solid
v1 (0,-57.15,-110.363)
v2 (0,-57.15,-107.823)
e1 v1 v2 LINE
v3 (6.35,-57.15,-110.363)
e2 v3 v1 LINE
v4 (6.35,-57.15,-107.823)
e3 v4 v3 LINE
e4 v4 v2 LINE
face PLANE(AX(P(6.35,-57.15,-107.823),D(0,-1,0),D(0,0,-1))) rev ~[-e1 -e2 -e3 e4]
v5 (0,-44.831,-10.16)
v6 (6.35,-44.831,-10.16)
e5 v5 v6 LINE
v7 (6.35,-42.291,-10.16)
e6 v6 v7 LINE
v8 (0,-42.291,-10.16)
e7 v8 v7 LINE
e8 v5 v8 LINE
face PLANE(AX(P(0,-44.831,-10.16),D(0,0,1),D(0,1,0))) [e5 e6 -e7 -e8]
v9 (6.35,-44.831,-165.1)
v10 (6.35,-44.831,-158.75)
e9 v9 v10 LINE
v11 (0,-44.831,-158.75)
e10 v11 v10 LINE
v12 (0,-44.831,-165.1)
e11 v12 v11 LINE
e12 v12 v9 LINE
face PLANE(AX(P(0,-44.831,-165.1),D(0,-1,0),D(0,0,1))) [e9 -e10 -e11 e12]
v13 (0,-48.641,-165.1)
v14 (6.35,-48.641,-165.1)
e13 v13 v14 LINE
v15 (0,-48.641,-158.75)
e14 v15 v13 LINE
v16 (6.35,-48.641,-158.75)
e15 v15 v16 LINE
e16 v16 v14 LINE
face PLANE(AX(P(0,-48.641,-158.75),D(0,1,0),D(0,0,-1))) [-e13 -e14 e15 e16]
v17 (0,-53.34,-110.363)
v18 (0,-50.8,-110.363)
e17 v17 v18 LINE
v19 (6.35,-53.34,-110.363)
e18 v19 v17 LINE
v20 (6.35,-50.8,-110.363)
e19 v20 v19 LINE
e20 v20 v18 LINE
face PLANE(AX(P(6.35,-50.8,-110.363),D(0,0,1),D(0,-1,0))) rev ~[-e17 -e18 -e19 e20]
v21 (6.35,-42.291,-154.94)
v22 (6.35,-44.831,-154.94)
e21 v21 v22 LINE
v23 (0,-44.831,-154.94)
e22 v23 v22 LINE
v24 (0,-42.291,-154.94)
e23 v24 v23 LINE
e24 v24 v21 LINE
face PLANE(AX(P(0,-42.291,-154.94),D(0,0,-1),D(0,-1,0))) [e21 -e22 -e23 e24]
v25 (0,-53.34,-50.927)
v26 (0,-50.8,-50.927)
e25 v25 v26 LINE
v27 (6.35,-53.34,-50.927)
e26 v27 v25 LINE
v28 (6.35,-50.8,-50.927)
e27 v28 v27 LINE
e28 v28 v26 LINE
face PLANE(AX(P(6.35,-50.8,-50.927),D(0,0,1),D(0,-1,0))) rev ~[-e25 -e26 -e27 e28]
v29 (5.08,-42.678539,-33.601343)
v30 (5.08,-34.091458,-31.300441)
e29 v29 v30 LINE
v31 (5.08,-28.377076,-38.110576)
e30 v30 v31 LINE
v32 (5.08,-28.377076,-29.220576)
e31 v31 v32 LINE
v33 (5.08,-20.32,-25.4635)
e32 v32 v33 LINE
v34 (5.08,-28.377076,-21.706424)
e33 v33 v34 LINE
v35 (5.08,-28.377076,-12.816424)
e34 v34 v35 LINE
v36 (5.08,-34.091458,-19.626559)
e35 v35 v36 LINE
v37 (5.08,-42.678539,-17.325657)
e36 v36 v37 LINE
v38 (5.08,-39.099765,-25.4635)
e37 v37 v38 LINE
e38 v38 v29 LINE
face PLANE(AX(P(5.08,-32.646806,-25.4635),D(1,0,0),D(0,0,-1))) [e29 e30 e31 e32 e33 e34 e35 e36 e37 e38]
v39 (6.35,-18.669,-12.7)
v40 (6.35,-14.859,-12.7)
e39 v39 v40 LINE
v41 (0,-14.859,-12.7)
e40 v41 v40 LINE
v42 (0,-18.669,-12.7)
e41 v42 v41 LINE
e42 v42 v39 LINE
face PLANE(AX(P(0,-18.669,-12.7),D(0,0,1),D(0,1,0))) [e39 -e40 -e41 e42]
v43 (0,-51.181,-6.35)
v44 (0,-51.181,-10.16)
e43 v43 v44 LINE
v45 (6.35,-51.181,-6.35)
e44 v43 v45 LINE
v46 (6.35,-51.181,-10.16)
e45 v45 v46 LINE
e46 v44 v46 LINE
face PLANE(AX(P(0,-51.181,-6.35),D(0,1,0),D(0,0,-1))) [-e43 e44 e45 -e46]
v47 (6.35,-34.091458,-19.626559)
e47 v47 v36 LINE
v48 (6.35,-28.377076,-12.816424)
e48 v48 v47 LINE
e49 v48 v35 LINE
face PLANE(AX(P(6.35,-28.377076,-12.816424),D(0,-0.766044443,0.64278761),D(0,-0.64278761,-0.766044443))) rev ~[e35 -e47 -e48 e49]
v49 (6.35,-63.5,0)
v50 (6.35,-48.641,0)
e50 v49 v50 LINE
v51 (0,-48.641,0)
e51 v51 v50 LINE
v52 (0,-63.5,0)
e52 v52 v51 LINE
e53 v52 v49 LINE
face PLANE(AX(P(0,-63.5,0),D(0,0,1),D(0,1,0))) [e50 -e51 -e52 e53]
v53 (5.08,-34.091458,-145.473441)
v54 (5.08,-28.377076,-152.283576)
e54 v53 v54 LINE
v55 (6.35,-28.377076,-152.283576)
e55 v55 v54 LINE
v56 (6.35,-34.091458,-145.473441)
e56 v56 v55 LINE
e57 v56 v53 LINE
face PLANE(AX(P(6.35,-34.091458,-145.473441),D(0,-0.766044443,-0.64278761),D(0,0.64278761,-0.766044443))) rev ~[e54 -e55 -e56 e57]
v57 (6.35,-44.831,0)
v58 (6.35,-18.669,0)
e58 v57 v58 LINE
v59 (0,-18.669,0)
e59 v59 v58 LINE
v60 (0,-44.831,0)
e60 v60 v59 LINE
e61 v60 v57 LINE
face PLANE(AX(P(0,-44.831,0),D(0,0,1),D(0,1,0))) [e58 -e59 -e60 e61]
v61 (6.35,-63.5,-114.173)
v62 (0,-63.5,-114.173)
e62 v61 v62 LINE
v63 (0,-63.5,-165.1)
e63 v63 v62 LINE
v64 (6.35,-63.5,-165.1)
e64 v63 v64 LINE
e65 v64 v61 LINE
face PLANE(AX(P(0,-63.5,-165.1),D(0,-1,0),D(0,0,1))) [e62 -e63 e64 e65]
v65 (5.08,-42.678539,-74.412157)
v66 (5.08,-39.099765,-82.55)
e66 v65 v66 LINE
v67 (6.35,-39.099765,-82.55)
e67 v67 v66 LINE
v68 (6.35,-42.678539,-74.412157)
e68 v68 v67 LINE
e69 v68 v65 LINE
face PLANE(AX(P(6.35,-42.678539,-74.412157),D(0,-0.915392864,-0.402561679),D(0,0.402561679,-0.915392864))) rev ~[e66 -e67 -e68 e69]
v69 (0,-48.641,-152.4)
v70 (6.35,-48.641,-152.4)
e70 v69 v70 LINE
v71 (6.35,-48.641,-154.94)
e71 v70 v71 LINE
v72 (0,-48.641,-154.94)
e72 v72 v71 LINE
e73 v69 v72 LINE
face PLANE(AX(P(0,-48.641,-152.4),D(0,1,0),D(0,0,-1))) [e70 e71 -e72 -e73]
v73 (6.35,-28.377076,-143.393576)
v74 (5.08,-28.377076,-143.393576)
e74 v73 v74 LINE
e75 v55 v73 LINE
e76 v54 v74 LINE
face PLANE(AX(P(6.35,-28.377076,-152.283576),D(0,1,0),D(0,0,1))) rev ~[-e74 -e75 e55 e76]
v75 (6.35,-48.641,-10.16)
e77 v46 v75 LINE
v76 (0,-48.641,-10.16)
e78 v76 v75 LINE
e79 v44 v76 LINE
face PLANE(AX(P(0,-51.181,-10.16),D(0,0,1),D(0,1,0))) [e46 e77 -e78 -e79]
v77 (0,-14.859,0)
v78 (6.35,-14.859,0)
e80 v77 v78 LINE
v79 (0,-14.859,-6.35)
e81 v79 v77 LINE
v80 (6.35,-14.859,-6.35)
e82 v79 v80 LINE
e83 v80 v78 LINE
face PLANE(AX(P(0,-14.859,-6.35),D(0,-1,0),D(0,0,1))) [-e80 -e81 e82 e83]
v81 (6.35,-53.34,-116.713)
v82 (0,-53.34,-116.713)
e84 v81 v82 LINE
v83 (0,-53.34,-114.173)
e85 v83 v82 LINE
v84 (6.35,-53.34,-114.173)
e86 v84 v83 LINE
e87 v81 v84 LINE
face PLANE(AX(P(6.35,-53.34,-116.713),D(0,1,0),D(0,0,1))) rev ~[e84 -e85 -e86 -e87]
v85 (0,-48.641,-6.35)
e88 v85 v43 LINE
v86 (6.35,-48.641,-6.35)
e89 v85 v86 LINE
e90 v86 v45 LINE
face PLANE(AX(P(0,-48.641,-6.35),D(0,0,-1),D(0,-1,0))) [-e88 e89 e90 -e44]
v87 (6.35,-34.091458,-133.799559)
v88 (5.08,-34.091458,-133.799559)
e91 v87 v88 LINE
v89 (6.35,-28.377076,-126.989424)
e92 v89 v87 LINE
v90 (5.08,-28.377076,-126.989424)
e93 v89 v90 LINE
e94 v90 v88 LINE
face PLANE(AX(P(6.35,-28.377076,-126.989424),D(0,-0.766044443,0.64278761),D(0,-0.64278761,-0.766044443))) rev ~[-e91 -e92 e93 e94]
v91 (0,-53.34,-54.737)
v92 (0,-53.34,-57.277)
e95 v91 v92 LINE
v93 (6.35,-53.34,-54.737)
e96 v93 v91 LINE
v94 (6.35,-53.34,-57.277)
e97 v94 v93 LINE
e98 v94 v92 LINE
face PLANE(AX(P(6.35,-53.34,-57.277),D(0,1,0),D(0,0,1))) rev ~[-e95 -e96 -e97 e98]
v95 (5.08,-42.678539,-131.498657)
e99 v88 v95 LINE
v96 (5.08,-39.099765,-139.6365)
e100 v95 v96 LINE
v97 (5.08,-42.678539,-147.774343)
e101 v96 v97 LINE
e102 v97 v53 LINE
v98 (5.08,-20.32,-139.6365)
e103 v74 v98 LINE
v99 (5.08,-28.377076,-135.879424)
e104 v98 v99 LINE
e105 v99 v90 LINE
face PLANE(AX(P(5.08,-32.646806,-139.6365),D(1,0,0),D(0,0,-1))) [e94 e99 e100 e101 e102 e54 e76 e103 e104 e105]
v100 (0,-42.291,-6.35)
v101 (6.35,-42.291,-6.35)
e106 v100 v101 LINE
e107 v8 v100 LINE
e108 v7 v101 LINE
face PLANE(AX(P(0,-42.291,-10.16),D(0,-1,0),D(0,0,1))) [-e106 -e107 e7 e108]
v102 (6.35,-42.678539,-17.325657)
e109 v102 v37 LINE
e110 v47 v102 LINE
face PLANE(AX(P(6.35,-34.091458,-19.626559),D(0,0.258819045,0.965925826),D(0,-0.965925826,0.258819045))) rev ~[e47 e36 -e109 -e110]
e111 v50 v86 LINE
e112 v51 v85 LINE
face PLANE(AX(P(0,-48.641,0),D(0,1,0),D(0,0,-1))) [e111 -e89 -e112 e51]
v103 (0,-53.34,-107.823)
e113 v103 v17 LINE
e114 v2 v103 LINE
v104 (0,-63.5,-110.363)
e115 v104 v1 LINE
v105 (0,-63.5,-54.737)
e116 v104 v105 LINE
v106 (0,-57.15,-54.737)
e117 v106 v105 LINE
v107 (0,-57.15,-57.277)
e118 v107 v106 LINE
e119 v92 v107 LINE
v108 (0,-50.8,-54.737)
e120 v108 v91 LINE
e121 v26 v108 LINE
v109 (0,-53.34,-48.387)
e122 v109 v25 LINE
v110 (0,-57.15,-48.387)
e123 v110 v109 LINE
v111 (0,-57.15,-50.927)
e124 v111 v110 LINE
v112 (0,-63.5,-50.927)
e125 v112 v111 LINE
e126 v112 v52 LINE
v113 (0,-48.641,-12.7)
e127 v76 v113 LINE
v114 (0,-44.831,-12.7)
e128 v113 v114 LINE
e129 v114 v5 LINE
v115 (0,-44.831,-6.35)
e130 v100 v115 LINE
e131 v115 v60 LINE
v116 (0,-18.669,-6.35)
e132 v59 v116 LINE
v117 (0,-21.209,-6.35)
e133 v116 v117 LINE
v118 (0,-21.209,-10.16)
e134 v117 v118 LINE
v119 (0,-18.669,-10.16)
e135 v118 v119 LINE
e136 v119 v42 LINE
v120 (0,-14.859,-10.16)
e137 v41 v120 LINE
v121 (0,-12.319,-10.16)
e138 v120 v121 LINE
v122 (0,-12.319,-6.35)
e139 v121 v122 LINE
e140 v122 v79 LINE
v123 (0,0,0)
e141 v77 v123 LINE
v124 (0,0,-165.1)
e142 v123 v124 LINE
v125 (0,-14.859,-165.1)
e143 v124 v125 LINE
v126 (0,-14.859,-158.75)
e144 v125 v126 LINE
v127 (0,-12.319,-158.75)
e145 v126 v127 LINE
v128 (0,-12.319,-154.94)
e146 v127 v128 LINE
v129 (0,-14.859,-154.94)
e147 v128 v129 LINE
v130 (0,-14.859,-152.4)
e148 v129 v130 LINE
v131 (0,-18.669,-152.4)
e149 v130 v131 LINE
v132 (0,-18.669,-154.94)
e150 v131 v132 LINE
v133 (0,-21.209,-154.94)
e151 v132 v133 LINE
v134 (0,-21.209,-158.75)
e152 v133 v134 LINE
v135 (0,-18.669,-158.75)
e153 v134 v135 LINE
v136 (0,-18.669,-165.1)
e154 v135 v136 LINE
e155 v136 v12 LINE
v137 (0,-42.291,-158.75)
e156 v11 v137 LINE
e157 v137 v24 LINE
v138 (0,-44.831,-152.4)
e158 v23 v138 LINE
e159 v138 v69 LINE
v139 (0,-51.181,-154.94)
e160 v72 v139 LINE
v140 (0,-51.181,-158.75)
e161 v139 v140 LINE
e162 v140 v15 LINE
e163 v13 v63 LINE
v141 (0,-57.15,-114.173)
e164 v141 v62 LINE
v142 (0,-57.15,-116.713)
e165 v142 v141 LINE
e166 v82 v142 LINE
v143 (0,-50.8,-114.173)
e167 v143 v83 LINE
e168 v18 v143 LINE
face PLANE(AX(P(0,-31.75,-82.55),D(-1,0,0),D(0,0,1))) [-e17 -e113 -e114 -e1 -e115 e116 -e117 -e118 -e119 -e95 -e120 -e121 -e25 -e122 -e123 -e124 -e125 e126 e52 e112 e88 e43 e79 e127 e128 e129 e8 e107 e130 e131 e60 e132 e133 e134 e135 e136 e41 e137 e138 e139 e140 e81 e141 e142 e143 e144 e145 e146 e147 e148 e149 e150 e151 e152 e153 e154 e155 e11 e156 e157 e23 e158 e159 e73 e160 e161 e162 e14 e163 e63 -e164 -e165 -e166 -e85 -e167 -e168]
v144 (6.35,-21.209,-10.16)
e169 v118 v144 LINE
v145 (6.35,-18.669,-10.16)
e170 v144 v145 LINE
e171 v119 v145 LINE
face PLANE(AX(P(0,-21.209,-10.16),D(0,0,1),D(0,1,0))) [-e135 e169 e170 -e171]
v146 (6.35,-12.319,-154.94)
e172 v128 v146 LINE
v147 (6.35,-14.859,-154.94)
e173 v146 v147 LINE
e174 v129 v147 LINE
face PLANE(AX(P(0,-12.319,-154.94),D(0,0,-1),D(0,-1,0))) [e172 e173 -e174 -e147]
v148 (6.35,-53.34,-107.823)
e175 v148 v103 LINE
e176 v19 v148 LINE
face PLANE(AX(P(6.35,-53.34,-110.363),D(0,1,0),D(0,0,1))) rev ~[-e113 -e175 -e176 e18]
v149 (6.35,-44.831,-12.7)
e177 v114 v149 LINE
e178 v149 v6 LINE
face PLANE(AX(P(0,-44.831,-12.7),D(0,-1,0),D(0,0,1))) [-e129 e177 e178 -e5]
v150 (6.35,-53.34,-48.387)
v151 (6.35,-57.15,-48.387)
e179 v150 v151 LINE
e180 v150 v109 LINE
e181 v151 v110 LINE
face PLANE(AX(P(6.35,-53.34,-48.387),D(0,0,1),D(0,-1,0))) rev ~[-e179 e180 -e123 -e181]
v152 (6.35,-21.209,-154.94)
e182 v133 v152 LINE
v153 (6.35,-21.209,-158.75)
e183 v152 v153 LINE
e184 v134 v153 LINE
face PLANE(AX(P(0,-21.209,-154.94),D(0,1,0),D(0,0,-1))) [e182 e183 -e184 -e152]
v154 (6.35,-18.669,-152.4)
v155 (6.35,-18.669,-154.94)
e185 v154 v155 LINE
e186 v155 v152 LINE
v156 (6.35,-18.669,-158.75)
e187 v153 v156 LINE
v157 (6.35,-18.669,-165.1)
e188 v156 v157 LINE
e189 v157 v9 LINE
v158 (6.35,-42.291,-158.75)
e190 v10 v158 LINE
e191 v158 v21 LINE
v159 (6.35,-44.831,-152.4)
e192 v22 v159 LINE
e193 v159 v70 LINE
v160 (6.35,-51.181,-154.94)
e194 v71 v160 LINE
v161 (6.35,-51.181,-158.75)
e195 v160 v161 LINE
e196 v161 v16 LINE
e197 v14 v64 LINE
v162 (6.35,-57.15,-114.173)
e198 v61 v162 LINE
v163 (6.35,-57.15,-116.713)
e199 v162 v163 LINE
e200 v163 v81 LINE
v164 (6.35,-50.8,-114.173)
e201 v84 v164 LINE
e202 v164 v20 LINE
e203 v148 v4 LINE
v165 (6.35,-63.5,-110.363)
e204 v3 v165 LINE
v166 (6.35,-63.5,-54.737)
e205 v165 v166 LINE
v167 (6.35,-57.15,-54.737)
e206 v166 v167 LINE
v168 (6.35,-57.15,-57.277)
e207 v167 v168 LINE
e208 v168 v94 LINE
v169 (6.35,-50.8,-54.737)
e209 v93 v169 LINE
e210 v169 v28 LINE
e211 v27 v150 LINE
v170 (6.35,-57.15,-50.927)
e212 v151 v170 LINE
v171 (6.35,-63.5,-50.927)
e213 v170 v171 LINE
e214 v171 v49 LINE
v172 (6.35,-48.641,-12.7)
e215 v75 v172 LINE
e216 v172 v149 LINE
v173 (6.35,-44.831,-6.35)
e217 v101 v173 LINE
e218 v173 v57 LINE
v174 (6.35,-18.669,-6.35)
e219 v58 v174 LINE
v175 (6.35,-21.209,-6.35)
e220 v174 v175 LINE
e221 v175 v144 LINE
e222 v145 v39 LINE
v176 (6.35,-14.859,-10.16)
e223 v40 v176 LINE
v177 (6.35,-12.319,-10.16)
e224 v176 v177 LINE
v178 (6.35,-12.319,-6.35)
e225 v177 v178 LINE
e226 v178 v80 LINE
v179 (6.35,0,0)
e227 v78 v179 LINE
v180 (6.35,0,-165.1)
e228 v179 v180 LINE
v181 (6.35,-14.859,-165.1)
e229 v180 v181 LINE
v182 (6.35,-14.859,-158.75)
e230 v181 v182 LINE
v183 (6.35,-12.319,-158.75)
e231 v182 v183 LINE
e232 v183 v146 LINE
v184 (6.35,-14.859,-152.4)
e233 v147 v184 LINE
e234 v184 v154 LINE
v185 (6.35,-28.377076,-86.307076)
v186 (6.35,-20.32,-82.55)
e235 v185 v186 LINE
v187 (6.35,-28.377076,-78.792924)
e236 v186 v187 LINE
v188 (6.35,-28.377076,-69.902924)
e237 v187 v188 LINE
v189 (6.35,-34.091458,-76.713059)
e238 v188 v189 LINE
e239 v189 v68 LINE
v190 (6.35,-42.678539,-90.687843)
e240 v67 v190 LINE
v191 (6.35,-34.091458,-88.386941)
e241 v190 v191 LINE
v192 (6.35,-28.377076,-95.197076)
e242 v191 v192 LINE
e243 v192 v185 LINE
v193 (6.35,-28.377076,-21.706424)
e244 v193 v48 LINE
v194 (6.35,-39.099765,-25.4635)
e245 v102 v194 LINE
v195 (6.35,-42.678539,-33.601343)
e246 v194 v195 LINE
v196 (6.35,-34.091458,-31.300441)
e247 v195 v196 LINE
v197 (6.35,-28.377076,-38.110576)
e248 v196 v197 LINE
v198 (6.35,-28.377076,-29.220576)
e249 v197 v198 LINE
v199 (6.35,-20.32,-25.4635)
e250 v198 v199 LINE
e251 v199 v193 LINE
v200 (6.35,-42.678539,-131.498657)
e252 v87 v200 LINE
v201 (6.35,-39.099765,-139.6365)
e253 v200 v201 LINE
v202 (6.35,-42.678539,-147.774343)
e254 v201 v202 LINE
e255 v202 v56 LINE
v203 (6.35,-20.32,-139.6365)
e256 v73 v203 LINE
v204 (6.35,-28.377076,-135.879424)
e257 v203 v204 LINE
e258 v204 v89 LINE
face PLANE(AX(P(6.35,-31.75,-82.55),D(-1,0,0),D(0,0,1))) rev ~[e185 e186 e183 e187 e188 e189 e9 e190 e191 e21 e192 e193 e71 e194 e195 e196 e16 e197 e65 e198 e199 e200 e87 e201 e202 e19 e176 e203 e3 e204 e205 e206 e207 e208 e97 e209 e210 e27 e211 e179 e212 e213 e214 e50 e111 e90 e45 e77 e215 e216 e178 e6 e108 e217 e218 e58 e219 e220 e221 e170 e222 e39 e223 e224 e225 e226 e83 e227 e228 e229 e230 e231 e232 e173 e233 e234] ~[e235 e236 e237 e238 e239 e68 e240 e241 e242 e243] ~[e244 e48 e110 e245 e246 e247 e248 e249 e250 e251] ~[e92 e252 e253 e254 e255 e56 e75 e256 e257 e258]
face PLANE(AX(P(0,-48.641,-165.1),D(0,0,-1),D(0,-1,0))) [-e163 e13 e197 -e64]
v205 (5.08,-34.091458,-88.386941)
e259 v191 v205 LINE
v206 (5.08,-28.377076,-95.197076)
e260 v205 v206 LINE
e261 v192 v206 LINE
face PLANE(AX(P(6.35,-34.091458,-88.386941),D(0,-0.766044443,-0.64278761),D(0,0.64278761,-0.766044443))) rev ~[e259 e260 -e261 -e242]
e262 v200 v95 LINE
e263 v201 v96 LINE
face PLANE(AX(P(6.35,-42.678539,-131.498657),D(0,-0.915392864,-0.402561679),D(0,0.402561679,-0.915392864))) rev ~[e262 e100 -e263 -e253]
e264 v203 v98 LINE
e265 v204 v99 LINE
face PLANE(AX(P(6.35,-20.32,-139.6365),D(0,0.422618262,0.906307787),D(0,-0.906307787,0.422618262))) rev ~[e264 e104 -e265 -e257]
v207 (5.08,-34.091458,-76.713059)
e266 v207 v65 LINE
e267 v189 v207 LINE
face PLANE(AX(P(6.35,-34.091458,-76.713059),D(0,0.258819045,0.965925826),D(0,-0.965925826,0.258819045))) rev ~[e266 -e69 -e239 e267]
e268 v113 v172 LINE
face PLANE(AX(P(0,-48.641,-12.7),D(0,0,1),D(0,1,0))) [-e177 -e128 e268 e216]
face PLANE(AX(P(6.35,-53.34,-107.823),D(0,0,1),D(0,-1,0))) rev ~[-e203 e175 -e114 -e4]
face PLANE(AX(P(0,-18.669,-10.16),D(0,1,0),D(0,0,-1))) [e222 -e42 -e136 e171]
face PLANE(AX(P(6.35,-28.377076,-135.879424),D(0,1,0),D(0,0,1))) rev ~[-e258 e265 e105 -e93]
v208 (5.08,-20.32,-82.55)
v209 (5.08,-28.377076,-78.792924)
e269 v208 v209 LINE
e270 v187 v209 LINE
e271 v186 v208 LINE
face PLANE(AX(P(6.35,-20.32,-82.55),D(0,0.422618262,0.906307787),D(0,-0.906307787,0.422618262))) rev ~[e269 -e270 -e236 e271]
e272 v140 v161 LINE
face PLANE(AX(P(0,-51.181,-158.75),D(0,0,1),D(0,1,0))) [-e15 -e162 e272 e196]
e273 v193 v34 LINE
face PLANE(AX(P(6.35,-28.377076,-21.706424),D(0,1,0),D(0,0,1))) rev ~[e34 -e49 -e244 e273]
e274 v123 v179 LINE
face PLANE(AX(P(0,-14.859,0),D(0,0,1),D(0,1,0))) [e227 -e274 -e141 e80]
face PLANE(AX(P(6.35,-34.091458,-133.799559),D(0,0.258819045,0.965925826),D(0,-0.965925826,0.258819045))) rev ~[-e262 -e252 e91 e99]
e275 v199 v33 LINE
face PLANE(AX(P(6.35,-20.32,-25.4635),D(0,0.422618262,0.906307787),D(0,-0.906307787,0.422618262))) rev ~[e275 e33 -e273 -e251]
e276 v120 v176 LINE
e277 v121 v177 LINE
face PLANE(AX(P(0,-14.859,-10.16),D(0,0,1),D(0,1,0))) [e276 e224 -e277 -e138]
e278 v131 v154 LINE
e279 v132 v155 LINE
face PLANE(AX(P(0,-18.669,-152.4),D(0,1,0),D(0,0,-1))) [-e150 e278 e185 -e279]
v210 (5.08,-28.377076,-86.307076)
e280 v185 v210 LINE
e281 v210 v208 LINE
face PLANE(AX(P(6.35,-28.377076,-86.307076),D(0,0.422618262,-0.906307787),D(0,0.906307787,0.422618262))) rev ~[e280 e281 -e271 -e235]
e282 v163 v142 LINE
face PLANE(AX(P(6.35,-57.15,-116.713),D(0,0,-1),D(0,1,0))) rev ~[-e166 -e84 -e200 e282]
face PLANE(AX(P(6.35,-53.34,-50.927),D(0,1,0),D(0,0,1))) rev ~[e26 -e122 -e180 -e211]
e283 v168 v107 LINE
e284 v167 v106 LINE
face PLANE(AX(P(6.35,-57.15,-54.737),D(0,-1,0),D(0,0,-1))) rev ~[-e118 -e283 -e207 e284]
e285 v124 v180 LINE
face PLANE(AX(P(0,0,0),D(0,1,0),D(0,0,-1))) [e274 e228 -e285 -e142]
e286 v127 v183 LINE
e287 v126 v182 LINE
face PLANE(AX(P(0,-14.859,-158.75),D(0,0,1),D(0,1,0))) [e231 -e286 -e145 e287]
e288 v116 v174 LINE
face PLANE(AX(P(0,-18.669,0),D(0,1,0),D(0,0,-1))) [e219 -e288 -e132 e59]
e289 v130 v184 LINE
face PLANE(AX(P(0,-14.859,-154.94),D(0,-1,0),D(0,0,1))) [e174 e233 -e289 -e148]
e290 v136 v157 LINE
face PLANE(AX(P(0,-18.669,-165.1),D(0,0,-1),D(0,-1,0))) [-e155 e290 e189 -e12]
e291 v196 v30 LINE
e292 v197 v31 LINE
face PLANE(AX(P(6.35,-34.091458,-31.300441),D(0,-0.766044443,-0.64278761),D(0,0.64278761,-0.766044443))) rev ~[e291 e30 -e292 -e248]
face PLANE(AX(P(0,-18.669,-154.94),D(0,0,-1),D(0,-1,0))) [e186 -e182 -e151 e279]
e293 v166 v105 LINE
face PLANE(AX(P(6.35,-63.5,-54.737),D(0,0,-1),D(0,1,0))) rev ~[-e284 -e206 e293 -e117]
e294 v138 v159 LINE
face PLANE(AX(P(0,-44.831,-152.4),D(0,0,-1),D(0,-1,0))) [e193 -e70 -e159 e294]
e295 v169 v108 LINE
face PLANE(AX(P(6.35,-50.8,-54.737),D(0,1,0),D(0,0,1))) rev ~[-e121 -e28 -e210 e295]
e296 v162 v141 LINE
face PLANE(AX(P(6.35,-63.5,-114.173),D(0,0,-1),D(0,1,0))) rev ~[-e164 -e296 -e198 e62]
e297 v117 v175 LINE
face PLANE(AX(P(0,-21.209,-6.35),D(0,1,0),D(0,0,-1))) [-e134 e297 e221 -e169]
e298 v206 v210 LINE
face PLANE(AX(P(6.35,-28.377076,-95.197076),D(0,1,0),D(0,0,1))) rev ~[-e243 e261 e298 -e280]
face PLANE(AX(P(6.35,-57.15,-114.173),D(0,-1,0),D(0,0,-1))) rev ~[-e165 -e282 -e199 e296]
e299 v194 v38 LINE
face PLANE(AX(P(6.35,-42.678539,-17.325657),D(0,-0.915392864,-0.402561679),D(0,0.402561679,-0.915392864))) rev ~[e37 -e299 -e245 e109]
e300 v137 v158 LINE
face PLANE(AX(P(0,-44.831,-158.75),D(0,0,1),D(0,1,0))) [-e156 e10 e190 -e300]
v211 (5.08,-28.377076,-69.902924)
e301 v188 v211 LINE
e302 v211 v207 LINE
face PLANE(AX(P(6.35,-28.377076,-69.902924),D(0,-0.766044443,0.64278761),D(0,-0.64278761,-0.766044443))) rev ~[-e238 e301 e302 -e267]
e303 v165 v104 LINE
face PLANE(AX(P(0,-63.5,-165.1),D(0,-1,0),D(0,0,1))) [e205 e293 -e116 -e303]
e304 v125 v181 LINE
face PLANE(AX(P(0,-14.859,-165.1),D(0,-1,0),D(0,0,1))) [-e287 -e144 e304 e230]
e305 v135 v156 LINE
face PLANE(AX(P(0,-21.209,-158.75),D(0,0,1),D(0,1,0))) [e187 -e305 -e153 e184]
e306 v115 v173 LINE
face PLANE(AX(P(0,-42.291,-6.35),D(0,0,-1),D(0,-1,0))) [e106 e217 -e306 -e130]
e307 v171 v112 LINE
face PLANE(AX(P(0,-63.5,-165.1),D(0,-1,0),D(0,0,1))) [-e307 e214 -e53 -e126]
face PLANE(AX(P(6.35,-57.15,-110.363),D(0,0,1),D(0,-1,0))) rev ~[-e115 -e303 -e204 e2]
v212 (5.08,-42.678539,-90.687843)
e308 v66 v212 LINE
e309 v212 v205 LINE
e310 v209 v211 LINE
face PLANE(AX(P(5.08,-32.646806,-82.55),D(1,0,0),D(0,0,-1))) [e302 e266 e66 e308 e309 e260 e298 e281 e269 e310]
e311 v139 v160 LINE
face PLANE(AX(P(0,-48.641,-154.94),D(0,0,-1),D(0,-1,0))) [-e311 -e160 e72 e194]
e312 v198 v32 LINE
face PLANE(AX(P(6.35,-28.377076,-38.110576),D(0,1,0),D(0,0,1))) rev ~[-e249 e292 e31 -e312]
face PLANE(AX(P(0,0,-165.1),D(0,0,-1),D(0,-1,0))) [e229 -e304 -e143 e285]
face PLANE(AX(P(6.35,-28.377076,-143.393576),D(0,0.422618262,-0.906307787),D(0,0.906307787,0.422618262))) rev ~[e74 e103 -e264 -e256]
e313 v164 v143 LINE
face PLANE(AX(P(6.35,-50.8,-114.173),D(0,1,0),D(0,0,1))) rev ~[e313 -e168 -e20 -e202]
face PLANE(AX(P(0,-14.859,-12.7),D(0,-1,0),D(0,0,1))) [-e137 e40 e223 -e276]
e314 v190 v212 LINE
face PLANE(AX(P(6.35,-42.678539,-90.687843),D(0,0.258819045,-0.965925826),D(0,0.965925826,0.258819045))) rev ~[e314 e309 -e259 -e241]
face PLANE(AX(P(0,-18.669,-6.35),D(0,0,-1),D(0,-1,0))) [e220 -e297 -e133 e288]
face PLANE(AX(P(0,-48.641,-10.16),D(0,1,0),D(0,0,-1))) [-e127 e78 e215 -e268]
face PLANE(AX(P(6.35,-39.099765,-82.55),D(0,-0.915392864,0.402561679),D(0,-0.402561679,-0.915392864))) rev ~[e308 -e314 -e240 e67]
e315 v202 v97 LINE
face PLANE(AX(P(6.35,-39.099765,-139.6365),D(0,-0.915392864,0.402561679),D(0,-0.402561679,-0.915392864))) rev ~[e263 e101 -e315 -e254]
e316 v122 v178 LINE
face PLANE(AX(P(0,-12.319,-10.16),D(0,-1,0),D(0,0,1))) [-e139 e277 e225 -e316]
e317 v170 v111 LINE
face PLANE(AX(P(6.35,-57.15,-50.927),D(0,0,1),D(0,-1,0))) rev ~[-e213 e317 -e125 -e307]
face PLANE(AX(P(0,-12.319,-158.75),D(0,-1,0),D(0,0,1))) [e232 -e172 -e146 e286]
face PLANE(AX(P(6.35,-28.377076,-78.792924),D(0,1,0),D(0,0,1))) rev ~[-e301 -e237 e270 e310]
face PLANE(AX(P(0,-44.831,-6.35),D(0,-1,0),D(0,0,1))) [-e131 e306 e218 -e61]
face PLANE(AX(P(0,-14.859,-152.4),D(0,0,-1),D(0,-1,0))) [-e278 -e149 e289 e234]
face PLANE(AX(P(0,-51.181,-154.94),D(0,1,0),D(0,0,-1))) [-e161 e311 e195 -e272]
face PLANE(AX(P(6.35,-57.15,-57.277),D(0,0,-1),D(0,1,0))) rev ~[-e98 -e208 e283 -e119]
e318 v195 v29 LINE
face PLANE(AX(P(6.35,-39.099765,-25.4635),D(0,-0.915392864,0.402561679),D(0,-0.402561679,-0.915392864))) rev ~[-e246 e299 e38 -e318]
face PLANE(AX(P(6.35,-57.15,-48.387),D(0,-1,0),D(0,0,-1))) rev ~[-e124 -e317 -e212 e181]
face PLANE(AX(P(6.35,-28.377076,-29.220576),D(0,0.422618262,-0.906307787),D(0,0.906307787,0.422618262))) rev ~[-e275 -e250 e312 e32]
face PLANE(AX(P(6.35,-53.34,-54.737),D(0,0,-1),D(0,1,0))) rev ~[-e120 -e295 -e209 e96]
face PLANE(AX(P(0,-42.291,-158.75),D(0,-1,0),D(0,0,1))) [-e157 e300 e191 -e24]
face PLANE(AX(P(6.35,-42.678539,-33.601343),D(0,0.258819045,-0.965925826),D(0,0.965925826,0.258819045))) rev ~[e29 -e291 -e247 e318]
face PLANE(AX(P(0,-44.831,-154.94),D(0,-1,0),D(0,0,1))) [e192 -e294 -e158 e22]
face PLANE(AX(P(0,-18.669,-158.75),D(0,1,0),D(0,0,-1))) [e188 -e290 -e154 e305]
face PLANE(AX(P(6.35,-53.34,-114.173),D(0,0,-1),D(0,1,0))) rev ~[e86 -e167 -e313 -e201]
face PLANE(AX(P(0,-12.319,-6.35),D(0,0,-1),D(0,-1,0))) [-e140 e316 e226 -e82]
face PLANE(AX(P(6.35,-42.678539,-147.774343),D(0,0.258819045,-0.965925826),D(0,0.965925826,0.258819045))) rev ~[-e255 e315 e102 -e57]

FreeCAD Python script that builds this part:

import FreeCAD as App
import Part
import Sketcher

V = App.Vector
Q = App.Units.Quantity

doc = App.newDocument("Part")
body = doc.addObject("PartDesign::Body", "Body")

# Sketch on YZ plane
sketch1 = doc.addObject("Sketcher::SketchObject", "Sketch")
body.addObject(sketch1)
sketch1.AttachmentSupport = (doc.YZ_Plane, [""])
sketch1.MapMode = "FlatFace"
sketch1.addGeometry([
    Part.LineSegment(V(0, -165.1, 0), V(0, 0, 0)),  # 0
    Part.LineSegment(V(0, 0, 0), V(-14.9, 0, 0)),  # 1
    Part.LineSegment(V(-14.9, 0, 0), V(-14.9, -6.3, 0)),  # 2
    Part.LineSegment(V(-14.9, -6.3, 0), V(-12.3, -6.3, 0)),  # 3
    Part.LineSegment(V(-12.3, -6.3, 0), V(-12.3, -10.2, 0)),  # 4
    Part.LineSegment(V(-12.3, -10.2, 0), V(-14.9, -10.2, 0)),  # 5
    Part.LineSegment(V(-14.9, -10.2, 0), V(-14.9, -12.7, 0)),  # 6
    Part.LineSegment(V(-14.9, -12.7, 0), V(-18.7, -12.7, 0)),  # 7
    Part.LineSegment(V(-18.7, -12.7, 0), V(-18.7, -10.2, 0)),  # 8
    Part.LineSegment(V(-18.7, -10.2, 0), V(-21.2, -10.2, 0)),  # 9
    Part.LineSegment(V(-21.2, -10.2, 0), V(-21.2, -6.3, 0)),  # 10
    Part.LineSegment(V(-21.2, -6.3, 0), V(-18.7, -6.3, 0)),  # 11
    Part.LineSegment(V(-18.7, -6.3, 0), V(-18.7, 0, 0)),  # 12
    Part.LineSegment(V(-18.7, 0, 0), V(-44.8, 0, 0)),  # 13
    Part.LineSegment(V(-44.8, 0, 0), V(-44.8, -6.3, 0)),  # 14
    Part.LineSegment(V(-44.8, -6.3, 0), V(-42.3, -6.3, 0)),  # 15
    Part.LineSegment(V(-42.3, -6.3, 0), V(-42.3, -10.2, 0)),  # 16
    Part.LineSegment(V(-42.3, -10.2, 0), V(-44.8, -10.2, 0)),  # 17
    Part.LineSegment(V(-44.8, -10.2, 0), V(-44.8, -12.7, 0)),  # 18
    Part.LineSegment(V(-44.8, -12.7, 0), V(-48.6, -12.7, 0)),  # 19
    Part.LineSegment(V(-48.6, -12.7, 0), V(-48.6, -10.2, 0)),  # 20
    Part.LineSegment(V(-48.6, -10.2, 0), V(-51.2, -10.2, 0)),  # 21
    Part.LineSegment(V(-51.2, -10.2, 0), V(-51.2, -6.3, 0)),  # 22
    Part.LineSegment(V(-51.2, -6.3, 0), V(-48.6, -6.3, 0)),  # 23
    Part.LineSegment(V(-48.6, -6.3, 0), V(-48.6, 0, 0)),  # 24
    Part.LineSegment(V(-48.6, 0, 0), V(-63.5, 0, 0)),  # 25
    Part.LineSegment(V(-63.5, 0, 0), V(-63.5, -165.1, 0)),  # 26
    Part.LineSegment(V(-63.5, -165.1, 0), V(-48.6, -165.1, 0)),  # 27
    Part.LineSegment(V(-48.6, -165.1, 0), V(-48.6, -158.8, 0)),  # 28
    Part.LineSegment(V(-48.6, -158.8, 0), V(-51.2, -158.8, 0)),  # 29
    Part.LineSegment(V(-51.2, -158.8, 0), V(-51.2, -154.9, 0)),  # 30
    Part.LineSegment(V(-51.2, -154.9, 0), V(-48.6, -154.9, 0)),  # 31
    Part.LineSegment(V(-48.6, -154.9, 0), V(-48.6, -152.4, 0)),  # 32
    Part.LineSegment(V(-48.6, -152.4, 0), V(-44.8, -152.4, 0)),  # 33
    Part.LineSegment(V(-44.8, -152.4, 0), V(-44.8, -154.9, 0)),  # 34
    Part.LineSegment(V(-44.8, -154.9, 0), V(-42.3, -154.9, 0)),  # 35
    Part.LineSegment(V(-42.3, -154.9, 0), V(-42.3, -158.8, 0)),  # 36
    Part.LineSegment(V(-42.3, -158.8, 0), V(-44.8, -158.8, 0)),  # 37
    Part.LineSegment(V(-44.8, -158.8, 0), V(-44.8, -165.1, 0)),  # 38
    Part.LineSegment(V(-44.8, -165.1, 0), V(-18.7, -165.1, 0)),  # 39
    Part.LineSegment(V(-18.7, -165.1, 0), V(-18.7, -158.8, 0)),  # 40
    Part.LineSegment(V(-18.7, -158.8, 0), V(-21.2, -158.8, 0)),  # 41
    Part.LineSegment(V(-21.2, -158.8, 0), V(-21.2, -154.9, 0)),  # 42
    Part.LineSegment(V(-21.2, -154.9, 0), V(-18.7, -154.9, 0)),  # 43
    Part.LineSegment(V(-18.7, -154.9, 0), V(-18.7, -152.4, 0)),  # 44
    Part.LineSegment(V(-18.7, -152.4, 0), V(-14.9, -152.4, 0)),  # 45
    Part.LineSegment(V(-14.9, -152.4, 0), V(-14.9, -154.9, 0)),  # 46
    Part.LineSegment(V(-14.9, -154.9, 0), V(-12.3, -154.9, 0)),  # 47
    Part.LineSegment(V(-12.3, -154.9, 0), V(-12.3, -158.8, 0)),  # 48
    Part.LineSegment(V(-12.3, -158.8, 0), V(-14.9, -158.8, 0)),  # 49
    Part.LineSegment(V(-14.9, -158.8, 0), V(-14.9, -165.1, 0)),  # 50
    Part.LineSegment(V(-14.9, -165.1, 0), V(0, -165.1, 0)),  # 51
], False)
sketch1.addConstraint([
    Sketcher.Constraint("Coincident", 0, 2, 1, 1),
    Sketcher.Constraint("Coincident", 1, 2, 2, 1),
    Sketcher.Constraint("Coincident", 2, 2, 3, 1),
    Sketcher.Constraint("Coincident", 3, 2, 4, 1),
    Sketcher.Constraint("Coincident", 4, 2, 5, 1),
    Sketcher.Constraint("Coincident", 5, 2, 6, 1),
    Sketcher.Constraint("Coincident", 6, 2, 7, 1),
    Sketcher.Constraint("Coincident", 7, 2, 8, 1),
    Sketcher.Constraint("Coincident", 8, 2, 9, 1),
    Sketcher.Constraint("Coincident", 9, 2, 10, 1),
    Sketcher.Constraint("Coincident", 10, 2, 11, 1),
    Sketcher.Constraint("Coincident", 11, 2, 12, 1),
    Sketcher.Constraint("Coincident", 12, 2, 13, 1),
    Sketcher.Constraint("Coincident", 13, 2, 14, 1),
    Sketcher.Constraint("Coincident", 14, 2, 15, 1),
    Sketcher.Constraint("Coincident", 15, 2, 16, 1),
    Sketcher.Constraint("Coincident", 16, 2, 17, 1),
    Sketcher.Constraint("Coincident", 17, 2, 18, 1),
    Sketcher.Constraint("Coincident", 18, 2, 19, 1),
    Sketcher.Constraint("Coincident", 19, 2, 20, 1),
    Sketcher.Constraint("Coincident", 20, 2, 21, 1),
    Sketcher.Constraint("Coincident", 21, 2, 22, 1),
    Sketcher.Constraint("Coincident", 22, 2, 23, 1),
    Sketcher.Constraint("Coincident", 23, 2, 24, 1),
    Sketcher.Constraint("Coincident", 24, 2, 25, 1),
    Sketcher.Constraint("Coincident", 25, 2, 26, 1),
    Sketcher.Constraint("Coincident", 26, 2, 27, 1),
    Sketcher.Constraint("Coincident", 27, 2, 28, 1),
    Sketcher.Constraint("Coincident", 28, 2, 29, 1),
    Sketcher.Constraint("Coincident", 29, 2, 30, 1),
    Sketcher.Constraint("Coincident", 30, 2, 31, 1),
    Sketcher.Constraint("Coincident", 31, 2, 32, 1),
    Sketcher.Constraint("Coincident", 32, 2, 33, 1),
    Sketcher.Constraint("Coincident", 33, 2, 34, 1),
    Sketcher.Constraint("Coincident", 34, 2, 35, 1),
    Sketcher.Constraint("Coincident", 35, 2, 36, 1),
    Sketcher.Constraint("Coincident", 36, 2, 37, 1),
    Sketcher.Constraint("Coincident", 37, 2, 38, 1),
    Sketcher.Constraint("Coincident", 38, 2, 39, 1),
    Sketcher.Constraint("Coincident", 39, 2, 40, 1),
    Sketcher.Constraint("Coincident", 40, 2, 41, 1),
    Sketcher.Constraint("Coincident", 41, 2, 42, 1),
    Sketcher.Constraint("Coincident", 42, 2, 43, 1),
    Sketcher.Constraint("Coincident", 43, 2, 44, 1),
    Sketcher.Constraint("Coincident", 44, 2, 45, 1),
    Sketcher.Constraint("Coincident", 45, 2, 46, 1),
    Sketcher.Constraint("Coincident", 46, 2, 47, 1),
    Sketcher.Constraint("Coincident", 47, 2, 48, 1),
    Sketcher.Constraint("Coincident", 48, 2, 49, 1),
    Sketcher.Constraint("Coincident", 49, 2, 50, 1),
    Sketcher.Constraint("Coincident", 50, 2, 51, 1),
    Sketcher.Constraint("Coincident", 51, 2, 0, 1),
    Sketcher.Constraint("Vertical", 0),
    Sketcher.Constraint("Horizontal", 1),
    Sketcher.Constraint("Vertical", 2),
    Sketcher.Constraint("Horizontal", 3),
    Sketcher.Constraint("Vertical", 4),
    Sketcher.Constraint("Horizontal", 5),
    Sketcher.Constraint("Vertical", 6),
    Sketcher.Constraint("Horizontal", 7),
    Sketcher.Constraint("Vertical", 8),
    Sketcher.Constraint("Horizontal", 9),
    Sketcher.Constraint("Vertical", 10),
    Sketcher.Constraint("Horizontal", 11),
    Sketcher.Constraint("Vertical", 12),
    Sketcher.Constraint("Horizontal", 13),
    Sketcher.Constraint("Vertical", 14),
    Sketcher.Constraint("Horizontal", 15),
    Sketcher.Constraint("Vertical", 16),
    Sketcher.Constraint("Horizontal", 17),
    Sketcher.Constraint("Vertical", 18),
    Sketcher.Constraint("Horizontal", 19),
    Sketcher.Constraint("Vertical", 20),
    Sketcher.Constraint("Horizontal", 21),
    Sketcher.Constraint("Vertical", 22),
    Sketcher.Constraint("Horizontal", 23),
    Sketcher.Constraint("Vertical", 24),
    Sketcher.Constraint("Horizontal", 25),
    Sketcher.Constraint("Vertical", 26),
    Sketcher.Constraint("Horizontal", 27),
    Sketcher.Constraint("Vertical", 28),
    Sketcher.Constraint("Horizontal", 29),
    Sketcher.Constraint("Vertical", 30),
    Sketcher.Constraint("Horizontal", 31),
    Sketcher.Constraint("Vertical", 32),
    Sketcher.Constraint("Horizontal", 33),
    Sketcher.Constraint("Vertical", 34),
    Sketcher.Constraint("Horizontal", 35),
    Sketcher.Constraint("Vertical", 36),
    Sketcher.Constraint("Horizontal", 37),
    Sketcher.Constraint("Vertical", 38),
    Sketcher.Constraint("Horizontal", 39),
    Sketcher.Constraint("Vertical", 40),
    Sketcher.Constraint("Horizontal", 41),
    Sketcher.Constraint("Vertical", 42),
    Sketcher.Constraint("Horizontal", 43),
    Sketcher.Constraint("Vertical", 44),
    Sketcher.Constraint("Horizontal", 45),
    Sketcher.Constraint("Vertical", 46),
    Sketcher.Constraint("Horizontal", 47),
    Sketcher.Constraint("Vertical", 48),
    Sketcher.Constraint("Horizontal", 49),
    Sketcher.Constraint("Vertical", 50),
    Sketcher.Constraint("Horizontal", 51),
    Sketcher.Constraint("Coincident", 0, 2, -1, 1),
    Sketcher.Constraint("PointOnObject", 12, 2, -1),
    Sketcher.Constraint("PointOnObject", 24, 2, -1),
    Sketcher.Constraint("Horizontal", 5, 2, 8, 2),
    Sketcher.Constraint("Horizontal", 3, 2, 10, 2),
    Sketcher.Constraint("Horizontal", 11, 2, 14, 2),
    Sketcher.Constraint("Horizontal", 9, 2, 16, 2),
    Sketcher.Constraint("Horizontal", 7, 2, 18, 2),
    Sketcher.Constraint("Horizontal", 17, 2, 20, 2),
    Sketcher.Constraint("Horizontal", 15, 2, 22, 2),
    Sketcher.Constraint("Horizontal", 31, 2, 34, 2),
    Sketcher.Constraint("Horizontal", 29, 2, 36, 2),
    Sketcher.Constraint("Horizontal", 27, 2, 38, 2),
    Sketcher.Constraint("Horizontal", 37, 2, 40, 2),
    Sketcher.Constraint("Horizontal", 35, 2, 42, 2),
    Sketcher.Constraint("Horizontal", 33, 2, 44, 2),
    Sketcher.Constraint("Horizontal", 43, 2, 46, 2),
    Sketcher.Constraint("Horizontal", 41, 2, 48, 2),
    Sketcher.Constraint("Horizontal", 39, 2, 50, 2),
    Sketcher.Constraint("Vertical", 2, 2, 5, 2),
    Sketcher.Constraint("Vertical", 8, 2, 11, 2),
    Sketcher.Constraint("Vertical", 14, 2, 17, 2),
    Sketcher.Constraint("Vertical", 20, 2, 23, 2),
    Sketcher.Constraint("Vertical", 24, 2, 27, 2),
    Sketcher.Constraint("Vertical", 22, 2, 29, 2),
    Sketcher.Constraint("Vertical", 28, 2, 31, 2),
    Sketcher.Constraint("Vertical", 18, 2, 33, 2),
    Sketcher.Constraint("Vertical", 16, 2, 35, 2),
    Sketcher.Constraint("Vertical", 34, 2, 37, 2),
    Sketcher.Constraint("Vertical", 12, 2, 39, 2),
    Sketcher.Constraint("Vertical", 10, 2, 41, 2),
    Sketcher.Constraint("Vertical", 40, 2, 43, 2),
    Sketcher.Constraint("Vertical", 6, 2, 45, 2),
    Sketcher.Constraint("Vertical", 4, 2, 47, 2),
    Sketcher.Constraint("Vertical", 46, 2, 49, 2),
    Sketcher.Constraint("Equal", 5, 9),
    Sketcher.Constraint("Equal", 11, 15),
    Sketcher.Constraint("Equal", 7, 19),
    Sketcher.Constraint("Equal", 17, 21),
    Sketcher.Constraint("Equal", 1, 25),
    Sketcher.Constraint("Equal", 45, 4),
    Sketcher.Constraint("Equal", 49, 6),
    Sketcher.Constraint("Equal", 24, 28),
    Sketcher.Constraint("Equal", 22, 30),
    Sketcher.Constraint("Equal", 20, 32),
    Sketcher.Constraint("DistanceX", 3, 1, 3, 2, Q("0.1 in")),
    Sketcher.Constraint("DistanceY", 0, 1, 0, 2, Q("6.5 in")),
    Sketcher.Constraint("DistanceY", 32, 2, -1, 1, Q("6 in")),
    Sketcher.Constraint("DistanceX", 7, 2, 7, 1, Q("0.15 in")),
    Sketcher.Constraint("DistanceX", 13, 2, 13, 1, Q("1.03 in")),
    Sketcher.Constraint("DistanceX", 25, 2, -1, 1, Q("2.5 in")),
])
pad1 = doc.addObject("PartDesign::Pad", "Pad")
body.addObject(pad1)
pad1.Profile = sketch1
pad1.Length = Q("0.25 in")

# Sketch on YZ plane
sketch2 = doc.addObject("Sketcher::SketchObject", "Sketch001")
body.addObject(sketch2)
sketch2.AttachmentSupport = (doc.YZ_Plane, [""])
sketch2.MapMode = "FlatFace"
sketch2.AttachmentOffset = App.Placement(V(0, 0, 0.25 * 25.4), App.Rotation())
sketch2.addGeometry([
    Part.LineSegment(V(-63.5, -50.9, 0), V(-63.5, -54.7, 0)),  # 0
    Part.LineSegment(V(-63.5, -54.7, 0), V(-57.1, -54.7, 0)),  # 1
    Part.LineSegment(V(-57.1, -54.7, 0), V(-57.1, -57.3, 0)),  # 2
    Part.LineSegment(V(-57.1, -57.3, 0), V(-53.3, -57.3, 0)),  # 3
    Part.LineSegment(V(-53.3, -57.3, 0), V(-53.3, -54.7, 0)),  # 4
    Part.LineSegment(V(-53.3, -54.7, 0), V(-50.8, -54.7, 0)),  # 5
    Part.LineSegment(V(-50.8, -54.7, 0), V(-50.8, -50.9, 0)),  # 6
    Part.LineSegment(V(-50.8, -50.9, 0), V(-53.3, -50.9, 0)),  # 7
    Part.LineSegment(V(-53.3, -50.9, 0), V(-53.3, -48.4, 0)),  # 8
    Part.LineSegment(V(-53.3, -48.4, 0), V(-57.1, -48.4, 0)),  # 9
    Part.LineSegment(V(-57.1, -48.4, 0), V(-57.1, -50.9, 0)),  # 10
    Part.LineSegment(V(-57.1, -50.9, 0), V(-63.5, -50.9, 0)),  # 11
    Part.LineSegment(V(-63.5, -110.4, 0), V(-63.5, -114.2, 0)),  # 12
    Part.LineSegment(V(-63.5, -114.2, 0), V(-57.1, -114.2, 0)),  # 13
    Part.LineSegment(V(-57.1, -114.2, 0), V(-57.1, -116.7, 0)),  # 14
    Part.LineSegment(V(-57.1, -116.7, 0), V(-53.3, -116.7, 0)),  # 15
    Part.LineSegment(V(-53.3, -116.7, 0), V(-53.3, -114.2, 0)),  # 16
    Part.LineSegment(V(-53.3, -114.2, 0), V(-50.8, -114.2, 0)),  # 17
    Part.LineSegment(V(-50.8, -114.2, 0), V(-50.8, -110.4, 0)),  # 18
    Part.LineSegment(V(-50.8, -110.4, 0), V(-53.3, -110.4, 0)),  # 19
    Part.LineSegment(V(-53.3, -110.4, 0), V(-53.3, -107.8, 0)),  # 20
    Part.LineSegment(V(-53.3, -107.8, 0), V(-57.1, -107.8, 0)),  # 21
    Part.LineSegment(V(-57.1, -107.8, 0), V(-57.1, -110.4, 0)),  # 22
    Part.LineSegment(V(-57.1, -110.4, 0), V(-63.5, -110.4, 0)),  # 23
], False)
sketch2.addConstraint([
    Sketcher.Constraint("Coincident", 0, 2, 1, 1),
    Sketcher.Constraint("Coincident", 1, 2, 2, 1),
    Sketcher.Constraint("Coincident", 2, 2, 3, 1),
    Sketcher.Constraint("Coincident", 3, 2, 4, 1),
    Sketcher.Constraint("Coincident", 4, 2, 5, 1),
    Sketcher.Constraint("Coincident", 5, 2, 6, 1),
    Sketcher.Constraint("Coincident", 6, 2, 7, 1),
    Sketcher.Constraint("Coincident", 7, 2, 8, 1),
    Sketcher.Constraint("Coincident", 8, 2, 9, 1),
    Sketcher.Constraint("Coincident", 9, 2, 10, 1),
    Sketcher.Constraint("Coincident", 10, 2, 11, 1),
    Sketcher.Constraint("Coincident", 11, 2, 0, 1),
    Sketcher.Constraint("Coincident", 12, 2, 13, 1),
    Sketcher.Constraint("Coincident", 13, 2, 14, 1),
    Sketcher.Constraint("Coincident", 14, 2, 15, 1),
    Sketcher.Constraint("Coincident", 15, 2, 16, 1),
    Sketcher.Constraint("Coincident", 16, 2, 17, 1),
    Sketcher.Constraint("Coincident", 17, 2, 18, 1),
    Sketcher.Constraint("Coincident", 18, 2, 19, 1),
    Sketcher.Constraint("Coincident", 19, 2, 20, 1),
    Sketcher.Constraint("Coincident", 20, 2, 21, 1),
    Sketcher.Constraint("Coincident", 21, 2, 22, 1),
    Sketcher.Constraint("Coincident", 22, 2, 23, 1),
    Sketcher.Constraint("Coincident", 23, 2, 12, 1),
    Sketcher.Constraint("Vertical", 0),
    Sketcher.Constraint("Horizontal", 1),
    Sketcher.Constraint("Vertical", 2),
    Sketcher.Constraint("Horizontal", 3),
    Sketcher.Constraint("Vertical", 4),
    Sketcher.Constraint("Horizontal", 5),
    Sketcher.Constraint("Vertical", 6),
    Sketcher.Constraint("Horizontal", 7),
    Sketcher.Constraint("Vertical", 8),
    Sketcher.Constraint("Horizontal", 9),
    Sketcher.Constraint("Vertical", 10),
    Sketcher.Constraint("Horizontal", 11),
    Sketcher.Constraint("Vertical", 12),
    Sketcher.Constraint("Horizontal", 13),
    Sketcher.Constraint("Vertical", 14),
    Sketcher.Constraint("Horizontal", 15),
    Sketcher.Constraint("Vertical", 16),
    Sketcher.Constraint("Horizontal", 17),
    Sketcher.Constraint("Vertical", 18),
    Sketcher.Constraint("Horizontal", 19),
    Sketcher.Constraint("Vertical", 20),
    Sketcher.Constraint("Horizontal", 21),
    Sketcher.Constraint("Vertical", 22),
    Sketcher.Constraint("Horizontal", 23),
    Sketcher.Constraint("Horizontal", 1, 2, 4, 2),
    Sketcher.Constraint("Horizontal", 7, 2, 10, 2),
    Sketcher.Constraint("Horizontal", 13, 2, 16, 2),
    Sketcher.Constraint("Horizontal", 19, 2, 22, 2),
    Sketcher.Constraint("Vertical", 4, 2, 7, 2),
    Sketcher.Constraint("Vertical", 2, 2, 9, 2),
    Sketcher.Constraint("Vertical", 11, 2, 12, 2),
    Sketcher.Constraint("Vertical", 10, 2, 13, 2),
    Sketcher.Constraint("Vertical", 8, 2, 15, 2),
    Sketcher.Constraint("Vertical", 6, 2, 17, 2),
    Sketcher.Constraint("Vertical", 16, 2, 19, 2),
    Sketcher.Constraint("Vertical", 14, 2, 21, 2),
    Sketcher.Constraint("Equal", 21, 0),
    Sketcher.Constraint("Equal", 19, 2),
    Sketcher.Constraint("Equal", 4, 8),
    Sketcher.Constraint("Equal", 6, 12),
    Sketcher.Constraint("Equal", 10, 14),
    Sketcher.Constraint("Equal", 16, 20),
    Sketcher.Constraint("DistanceX", 5, 1, 5, 2, Q("0.1 in")),
    Sketcher.Constraint("DistanceX", 5, 2, -1, 1, Q("2 in")),
    Sketcher.Constraint("DistanceX", 1, 1, 1, 2, Q("0.25 in")),
    Sketcher.Constraint("DistanceX", 3, 1, 3, 2, Q("0.15 in")),
    Sketcher.Constraint("DistanceY", 12, 2, 2, 2, Q("2.24 in")),
    Sketcher.Constraint("DistanceY", 0, 2, -1, 1, Q("2.155 in")),
])
pocket1 = doc.addObject("PartDesign::Pocket", "Pocket")
body.addObject(pocket1)
pocket1.Profile = sketch2
pocket1.Type = "ThroughAll"

# Sketch on YZ plane
sketch3 = doc.addObject("Sketcher::SketchObject", "Sketch002")
body.addObject(sketch3)
sketch3.AttachmentSupport = (doc.YZ_Plane, [""])
sketch3.MapMode = "FlatFace"
sketch3.AttachmentOffset = App.Placement(V(0, 0, 0.25 * 25.4), App.Rotation())
sketch3.addGeometry([
    Part.LineSegment(V(-20, -83, 0), V(-28, -79, 0)),  # 0
    Part.LineSegment(V(-28, -79, 0), V(-28, -70, 0)),  # 1
    Part.LineSegment(V(-28, -70, 0), V(-34, -77, 0)),  # 2
    Part.LineSegment(V(-34, -77, 0), V(-43, -74, 0)),  # 3
    Part.LineSegment(V(-43, -74, 0), V(-39, -83, 0)),  # 4
    Part.LineSegment(V(-39, -83, 0), V(-43, -91, 0)),  # 5
    Part.LineSegment(V(-43, -91, 0), V(-34, -88, 0)),  # 6
    Part.LineSegment(V(-34, -88, 0), V(-28, -95, 0)),  # 7
    Part.LineSegment(V(-28, -95, 0), V(-28, -86, 0)),  # 8
    Part.LineSegment(V(-28, -86, 0), V(-20, -83, 0)),  # 9
    Part.LineSegment(V(-20, -25, 0), V(-28, -22, 0)),  # 10
    Part.LineSegment(V(-28, -22, 0), V(-28, -13, 0)),  # 11
    Part.LineSegment(V(-28, -13, 0), V(-34, -20, 0)),  # 12
    Part.LineSegment(V(-34, -20, 0), V(-43, -17, 0)),  # 13
    Part.LineSegment(V(-43, -17, 0), V(-39, -25, 0)),  # 14
    Part.LineSegment(V(-39, -25, 0), V(-43, -34, 0)),  # 15
    Part.LineSegment(V(-43, -34, 0), V(-34, -31, 0)),  # 16
    Part.LineSegment(V(-34, -31, 0), V(-28, -38, 0)),  # 17
    Part.LineSegment(V(-28, -38, 0), V(-28, -29, 0)),  # 18
    Part.LineSegment(V(-28, -29, 0), V(-20, -25, 0)),  # 19
    Part.LineSegment(V(-20, -140, 0), V(-28, -136, 0)),  # 20
    Part.LineSegment(V(-28, -136, 0), V(-28, -127, 0)),  # 21
    Part.LineSegment(V(-28, -127, 0), V(-34, -134, 0)),  # 22
    Part.LineSegment(V(-34, -134, 0), V(-43, -131, 0)),  # 23
    Part.LineSegment(V(-43, -131, 0), V(-39, -140, 0)),  # 24
    Part.LineSegment(V(-39, -140, 0), V(-43, -148, 0)),  # 25
    Part.LineSegment(V(-43, -148, 0), V(-34, -145, 0)),  # 26
    Part.LineSegment(V(-34, -145, 0), V(-28, -152, 0)),  # 27
    Part.LineSegment(V(-28, -152, 0), V(-28, -143, 0)),  # 28
    Part.LineSegment(V(-28, -143, 0), V(-20, -140, 0)),  # 29
], False)
sketch3.addConstraint([
    Sketcher.Constraint("Coincident", 0, 2, 1, 1),
    Sketcher.Constraint("Coincident", 1, 2, 2, 1),
    Sketcher.Constraint("Coincident", 2, 2, 3, 1),
    Sketcher.Constraint("Coincident", 3, 2, 4, 1),
    Sketcher.Constraint("Coincident", 4, 2, 5, 1),
    Sketcher.Constraint("Coincident", 5, 2, 6, 1),
    Sketcher.Constraint("Coincident", 6, 2, 7, 1),
    Sketcher.Constraint("Coincident", 7, 2, 8, 1),
    Sketcher.Constraint("Coincident", 8, 2, 9, 1),
    Sketcher.Constraint("Coincident", 9, 2, 0, 1),
    Sketcher.Constraint("Coincident", 10, 2, 11, 1),
    Sketcher.Constraint("Coincident", 11, 2, 12, 1),
    Sketcher.Constraint("Coincident", 12, 2, 13, 1),
    Sketcher.Constraint("Coincident", 13, 2, 14, 1),
    Sketcher.Constraint("Coincident", 14, 2, 15, 1),
    Sketcher.Constraint("Coincident", 15, 2, 16, 1),
    Sketcher.Constraint("Coincident", 16, 2, 17, 1),
    Sketcher.Constraint("Coincident", 17, 2, 18, 1),
    Sketcher.Constraint("Coincident", 18, 2, 19, 1),
    Sketcher.Constraint("Coincident", 19, 2, 10, 1),
    Sketcher.Constraint("Coincident", 20, 2, 21, 1),
    Sketcher.Constraint("Coincident", 21, 2, 22, 1),
    Sketcher.Constraint("Coincident", 22, 2, 23, 1),
    Sketcher.Constraint("Coincident", 23, 2, 24, 1),
    Sketcher.Constraint("Coincident", 24, 2, 25, 1),
    Sketcher.Constraint("Coincident", 25, 2, 26, 1),
    Sketcher.Constraint("Coincident", 26, 2, 27, 1),
    Sketcher.Constraint("Coincident", 27, 2, 28, 1),
    Sketcher.Constraint("Coincident", 28, 2, 29, 1),
    Sketcher.Constraint("Coincident", 29, 2, 20, 1),
    Sketcher.Constraint("Vertical", 1),
    Sketcher.Constraint("Vertical", 8),
    Sketcher.Constraint("Vertical", 11),
    Sketcher.Constraint("Vertical", 18),
    Sketcher.Constraint("Vertical", 21),
    Sketcher.Constraint("Vertical", 28),
    Sketcher.Constraint("Parallel", 0, 10),
    Sketcher.Constraint("Parallel", 2, 12),
    Sketcher.Constraint("Parallel", 3, 13),
    Sketcher.Constraint("Parallel", 4, 14),
    Sketcher.Constraint("Parallel", 5, 15),
    Sketcher.Constraint("Parallel", 6, 16),
    Sketcher.Constraint("Parallel", 7, 17),
    Sketcher.Constraint("Parallel", 9, 19),
    Sketcher.Constraint("Parallel", 10, 20),
    Sketcher.Constraint("Parallel", 12, 22),
    Sketcher.Constraint("Parallel", 13, 23),
    Sketcher.Constraint("Parallel", 14, 24),
    Sketcher.Constraint("Parallel", 15, 25),
    Sketcher.Constraint("Parallel", 16, 26),
    Sketcher.Constraint("Parallel", 17, 27),
    Sketcher.Constraint("Parallel", 19, 29),
    Sketcher.Constraint("Horizontal", 4, 2, 9, 2),
    Sketcher.Constraint("Horizontal", 14, 2, 19, 2),
    Sketcher.Constraint("Horizontal", 24, 2, 29, 2),
    Sketcher.Constraint("Vertical", 3, 2, 5, 2),
    Sketcher.Constraint("Vertical", 2, 2, 6, 2),
    Sketcher.Constraint("Vertical", 1, 2, 7, 2),
    Sketcher.Constraint("Vertical", 8, 2, 10, 2),
    Sketcher.Constraint("Vertical", 6, 2, 12, 2),
    Sketcher.Constraint("Vertical", 5, 2, 13, 2),
    Sketcher.Constraint("Vertical", 4, 2, 14, 2),
    Sketcher.Constraint("Vertical", 13, 2, 15, 2),
    Sketcher.Constraint("Vertical", 12, 2, 16, 2),
    Sketcher.Constraint("Vertical", 11, 2, 17, 2),
    Sketcher.Constraint("Vertical", 9, 2, 19, 2),
    Sketcher.Constraint("Vertical", 18, 2, 20, 2),
    Sketcher.Constraint("Vertical", 16, 2, 22, 2),
    Sketcher.Constraint("Vertical", 15, 2, 23, 2),
    Sketcher.Constraint("Vertical", 14, 2, 24, 2),
    Sketcher.Constraint("Vertical", 23, 2, 25, 2),
    Sketcher.Constraint("Vertical", 22, 2, 26, 2),
    Sketcher.Constraint("Vertical", 21, 2, 27, 2),
    Sketcher.Constraint("Vertical", 19, 2, 29, 2),
    Sketcher.Constraint("Equal", 1, 8),
    Sketcher.Constraint("Equal", 0, 2),
    Sketcher.Constraint("Equal", 2, 3),
    Sketcher.Constraint("Equal", 3, 4),
    Sketcher.Constraint("Equal", 4, 5),
    Sketcher.Constraint("Equal", 5, 6),
    Sketcher.Constraint("Equal", 6, 7),
    Sketcher.Constraint("Angle", 0, Q("155 deg")),
    Sketcher.Constraint("Angle", 2, Q("-130 deg")),
    Sketcher.Constraint("Angle", 3, Q("165 deg")),
    Sketcher.Constraint("DistanceY", 1, 1, 1, 2, Q("0.35 in")),
    Sketcher.Constraint("DistanceX", 9, 2, -1, 1, Q("0.8 in")),
    Sketcher.Constraint("Distance", 0, Q("0.35 in")),
    Sketcher.Constraint("DistanceY", 4, 2, -1, 1, Q("3.25 in")),
    Sketcher.Constraint("DistanceY", 14, 2, -1, 1, Q("1.0025 in")),
    Sketcher.Constraint("DistanceY", 24, 2, -1, 1, Q("5.4975 in")),
])
pocket2 = doc.addObject("PartDesign::Pocket", "Pocket001")
body.addObject(pocket2)
pocket2.Profile = sketch3
pocket2.Length = Q("0.05 in")

doc.recompute()
